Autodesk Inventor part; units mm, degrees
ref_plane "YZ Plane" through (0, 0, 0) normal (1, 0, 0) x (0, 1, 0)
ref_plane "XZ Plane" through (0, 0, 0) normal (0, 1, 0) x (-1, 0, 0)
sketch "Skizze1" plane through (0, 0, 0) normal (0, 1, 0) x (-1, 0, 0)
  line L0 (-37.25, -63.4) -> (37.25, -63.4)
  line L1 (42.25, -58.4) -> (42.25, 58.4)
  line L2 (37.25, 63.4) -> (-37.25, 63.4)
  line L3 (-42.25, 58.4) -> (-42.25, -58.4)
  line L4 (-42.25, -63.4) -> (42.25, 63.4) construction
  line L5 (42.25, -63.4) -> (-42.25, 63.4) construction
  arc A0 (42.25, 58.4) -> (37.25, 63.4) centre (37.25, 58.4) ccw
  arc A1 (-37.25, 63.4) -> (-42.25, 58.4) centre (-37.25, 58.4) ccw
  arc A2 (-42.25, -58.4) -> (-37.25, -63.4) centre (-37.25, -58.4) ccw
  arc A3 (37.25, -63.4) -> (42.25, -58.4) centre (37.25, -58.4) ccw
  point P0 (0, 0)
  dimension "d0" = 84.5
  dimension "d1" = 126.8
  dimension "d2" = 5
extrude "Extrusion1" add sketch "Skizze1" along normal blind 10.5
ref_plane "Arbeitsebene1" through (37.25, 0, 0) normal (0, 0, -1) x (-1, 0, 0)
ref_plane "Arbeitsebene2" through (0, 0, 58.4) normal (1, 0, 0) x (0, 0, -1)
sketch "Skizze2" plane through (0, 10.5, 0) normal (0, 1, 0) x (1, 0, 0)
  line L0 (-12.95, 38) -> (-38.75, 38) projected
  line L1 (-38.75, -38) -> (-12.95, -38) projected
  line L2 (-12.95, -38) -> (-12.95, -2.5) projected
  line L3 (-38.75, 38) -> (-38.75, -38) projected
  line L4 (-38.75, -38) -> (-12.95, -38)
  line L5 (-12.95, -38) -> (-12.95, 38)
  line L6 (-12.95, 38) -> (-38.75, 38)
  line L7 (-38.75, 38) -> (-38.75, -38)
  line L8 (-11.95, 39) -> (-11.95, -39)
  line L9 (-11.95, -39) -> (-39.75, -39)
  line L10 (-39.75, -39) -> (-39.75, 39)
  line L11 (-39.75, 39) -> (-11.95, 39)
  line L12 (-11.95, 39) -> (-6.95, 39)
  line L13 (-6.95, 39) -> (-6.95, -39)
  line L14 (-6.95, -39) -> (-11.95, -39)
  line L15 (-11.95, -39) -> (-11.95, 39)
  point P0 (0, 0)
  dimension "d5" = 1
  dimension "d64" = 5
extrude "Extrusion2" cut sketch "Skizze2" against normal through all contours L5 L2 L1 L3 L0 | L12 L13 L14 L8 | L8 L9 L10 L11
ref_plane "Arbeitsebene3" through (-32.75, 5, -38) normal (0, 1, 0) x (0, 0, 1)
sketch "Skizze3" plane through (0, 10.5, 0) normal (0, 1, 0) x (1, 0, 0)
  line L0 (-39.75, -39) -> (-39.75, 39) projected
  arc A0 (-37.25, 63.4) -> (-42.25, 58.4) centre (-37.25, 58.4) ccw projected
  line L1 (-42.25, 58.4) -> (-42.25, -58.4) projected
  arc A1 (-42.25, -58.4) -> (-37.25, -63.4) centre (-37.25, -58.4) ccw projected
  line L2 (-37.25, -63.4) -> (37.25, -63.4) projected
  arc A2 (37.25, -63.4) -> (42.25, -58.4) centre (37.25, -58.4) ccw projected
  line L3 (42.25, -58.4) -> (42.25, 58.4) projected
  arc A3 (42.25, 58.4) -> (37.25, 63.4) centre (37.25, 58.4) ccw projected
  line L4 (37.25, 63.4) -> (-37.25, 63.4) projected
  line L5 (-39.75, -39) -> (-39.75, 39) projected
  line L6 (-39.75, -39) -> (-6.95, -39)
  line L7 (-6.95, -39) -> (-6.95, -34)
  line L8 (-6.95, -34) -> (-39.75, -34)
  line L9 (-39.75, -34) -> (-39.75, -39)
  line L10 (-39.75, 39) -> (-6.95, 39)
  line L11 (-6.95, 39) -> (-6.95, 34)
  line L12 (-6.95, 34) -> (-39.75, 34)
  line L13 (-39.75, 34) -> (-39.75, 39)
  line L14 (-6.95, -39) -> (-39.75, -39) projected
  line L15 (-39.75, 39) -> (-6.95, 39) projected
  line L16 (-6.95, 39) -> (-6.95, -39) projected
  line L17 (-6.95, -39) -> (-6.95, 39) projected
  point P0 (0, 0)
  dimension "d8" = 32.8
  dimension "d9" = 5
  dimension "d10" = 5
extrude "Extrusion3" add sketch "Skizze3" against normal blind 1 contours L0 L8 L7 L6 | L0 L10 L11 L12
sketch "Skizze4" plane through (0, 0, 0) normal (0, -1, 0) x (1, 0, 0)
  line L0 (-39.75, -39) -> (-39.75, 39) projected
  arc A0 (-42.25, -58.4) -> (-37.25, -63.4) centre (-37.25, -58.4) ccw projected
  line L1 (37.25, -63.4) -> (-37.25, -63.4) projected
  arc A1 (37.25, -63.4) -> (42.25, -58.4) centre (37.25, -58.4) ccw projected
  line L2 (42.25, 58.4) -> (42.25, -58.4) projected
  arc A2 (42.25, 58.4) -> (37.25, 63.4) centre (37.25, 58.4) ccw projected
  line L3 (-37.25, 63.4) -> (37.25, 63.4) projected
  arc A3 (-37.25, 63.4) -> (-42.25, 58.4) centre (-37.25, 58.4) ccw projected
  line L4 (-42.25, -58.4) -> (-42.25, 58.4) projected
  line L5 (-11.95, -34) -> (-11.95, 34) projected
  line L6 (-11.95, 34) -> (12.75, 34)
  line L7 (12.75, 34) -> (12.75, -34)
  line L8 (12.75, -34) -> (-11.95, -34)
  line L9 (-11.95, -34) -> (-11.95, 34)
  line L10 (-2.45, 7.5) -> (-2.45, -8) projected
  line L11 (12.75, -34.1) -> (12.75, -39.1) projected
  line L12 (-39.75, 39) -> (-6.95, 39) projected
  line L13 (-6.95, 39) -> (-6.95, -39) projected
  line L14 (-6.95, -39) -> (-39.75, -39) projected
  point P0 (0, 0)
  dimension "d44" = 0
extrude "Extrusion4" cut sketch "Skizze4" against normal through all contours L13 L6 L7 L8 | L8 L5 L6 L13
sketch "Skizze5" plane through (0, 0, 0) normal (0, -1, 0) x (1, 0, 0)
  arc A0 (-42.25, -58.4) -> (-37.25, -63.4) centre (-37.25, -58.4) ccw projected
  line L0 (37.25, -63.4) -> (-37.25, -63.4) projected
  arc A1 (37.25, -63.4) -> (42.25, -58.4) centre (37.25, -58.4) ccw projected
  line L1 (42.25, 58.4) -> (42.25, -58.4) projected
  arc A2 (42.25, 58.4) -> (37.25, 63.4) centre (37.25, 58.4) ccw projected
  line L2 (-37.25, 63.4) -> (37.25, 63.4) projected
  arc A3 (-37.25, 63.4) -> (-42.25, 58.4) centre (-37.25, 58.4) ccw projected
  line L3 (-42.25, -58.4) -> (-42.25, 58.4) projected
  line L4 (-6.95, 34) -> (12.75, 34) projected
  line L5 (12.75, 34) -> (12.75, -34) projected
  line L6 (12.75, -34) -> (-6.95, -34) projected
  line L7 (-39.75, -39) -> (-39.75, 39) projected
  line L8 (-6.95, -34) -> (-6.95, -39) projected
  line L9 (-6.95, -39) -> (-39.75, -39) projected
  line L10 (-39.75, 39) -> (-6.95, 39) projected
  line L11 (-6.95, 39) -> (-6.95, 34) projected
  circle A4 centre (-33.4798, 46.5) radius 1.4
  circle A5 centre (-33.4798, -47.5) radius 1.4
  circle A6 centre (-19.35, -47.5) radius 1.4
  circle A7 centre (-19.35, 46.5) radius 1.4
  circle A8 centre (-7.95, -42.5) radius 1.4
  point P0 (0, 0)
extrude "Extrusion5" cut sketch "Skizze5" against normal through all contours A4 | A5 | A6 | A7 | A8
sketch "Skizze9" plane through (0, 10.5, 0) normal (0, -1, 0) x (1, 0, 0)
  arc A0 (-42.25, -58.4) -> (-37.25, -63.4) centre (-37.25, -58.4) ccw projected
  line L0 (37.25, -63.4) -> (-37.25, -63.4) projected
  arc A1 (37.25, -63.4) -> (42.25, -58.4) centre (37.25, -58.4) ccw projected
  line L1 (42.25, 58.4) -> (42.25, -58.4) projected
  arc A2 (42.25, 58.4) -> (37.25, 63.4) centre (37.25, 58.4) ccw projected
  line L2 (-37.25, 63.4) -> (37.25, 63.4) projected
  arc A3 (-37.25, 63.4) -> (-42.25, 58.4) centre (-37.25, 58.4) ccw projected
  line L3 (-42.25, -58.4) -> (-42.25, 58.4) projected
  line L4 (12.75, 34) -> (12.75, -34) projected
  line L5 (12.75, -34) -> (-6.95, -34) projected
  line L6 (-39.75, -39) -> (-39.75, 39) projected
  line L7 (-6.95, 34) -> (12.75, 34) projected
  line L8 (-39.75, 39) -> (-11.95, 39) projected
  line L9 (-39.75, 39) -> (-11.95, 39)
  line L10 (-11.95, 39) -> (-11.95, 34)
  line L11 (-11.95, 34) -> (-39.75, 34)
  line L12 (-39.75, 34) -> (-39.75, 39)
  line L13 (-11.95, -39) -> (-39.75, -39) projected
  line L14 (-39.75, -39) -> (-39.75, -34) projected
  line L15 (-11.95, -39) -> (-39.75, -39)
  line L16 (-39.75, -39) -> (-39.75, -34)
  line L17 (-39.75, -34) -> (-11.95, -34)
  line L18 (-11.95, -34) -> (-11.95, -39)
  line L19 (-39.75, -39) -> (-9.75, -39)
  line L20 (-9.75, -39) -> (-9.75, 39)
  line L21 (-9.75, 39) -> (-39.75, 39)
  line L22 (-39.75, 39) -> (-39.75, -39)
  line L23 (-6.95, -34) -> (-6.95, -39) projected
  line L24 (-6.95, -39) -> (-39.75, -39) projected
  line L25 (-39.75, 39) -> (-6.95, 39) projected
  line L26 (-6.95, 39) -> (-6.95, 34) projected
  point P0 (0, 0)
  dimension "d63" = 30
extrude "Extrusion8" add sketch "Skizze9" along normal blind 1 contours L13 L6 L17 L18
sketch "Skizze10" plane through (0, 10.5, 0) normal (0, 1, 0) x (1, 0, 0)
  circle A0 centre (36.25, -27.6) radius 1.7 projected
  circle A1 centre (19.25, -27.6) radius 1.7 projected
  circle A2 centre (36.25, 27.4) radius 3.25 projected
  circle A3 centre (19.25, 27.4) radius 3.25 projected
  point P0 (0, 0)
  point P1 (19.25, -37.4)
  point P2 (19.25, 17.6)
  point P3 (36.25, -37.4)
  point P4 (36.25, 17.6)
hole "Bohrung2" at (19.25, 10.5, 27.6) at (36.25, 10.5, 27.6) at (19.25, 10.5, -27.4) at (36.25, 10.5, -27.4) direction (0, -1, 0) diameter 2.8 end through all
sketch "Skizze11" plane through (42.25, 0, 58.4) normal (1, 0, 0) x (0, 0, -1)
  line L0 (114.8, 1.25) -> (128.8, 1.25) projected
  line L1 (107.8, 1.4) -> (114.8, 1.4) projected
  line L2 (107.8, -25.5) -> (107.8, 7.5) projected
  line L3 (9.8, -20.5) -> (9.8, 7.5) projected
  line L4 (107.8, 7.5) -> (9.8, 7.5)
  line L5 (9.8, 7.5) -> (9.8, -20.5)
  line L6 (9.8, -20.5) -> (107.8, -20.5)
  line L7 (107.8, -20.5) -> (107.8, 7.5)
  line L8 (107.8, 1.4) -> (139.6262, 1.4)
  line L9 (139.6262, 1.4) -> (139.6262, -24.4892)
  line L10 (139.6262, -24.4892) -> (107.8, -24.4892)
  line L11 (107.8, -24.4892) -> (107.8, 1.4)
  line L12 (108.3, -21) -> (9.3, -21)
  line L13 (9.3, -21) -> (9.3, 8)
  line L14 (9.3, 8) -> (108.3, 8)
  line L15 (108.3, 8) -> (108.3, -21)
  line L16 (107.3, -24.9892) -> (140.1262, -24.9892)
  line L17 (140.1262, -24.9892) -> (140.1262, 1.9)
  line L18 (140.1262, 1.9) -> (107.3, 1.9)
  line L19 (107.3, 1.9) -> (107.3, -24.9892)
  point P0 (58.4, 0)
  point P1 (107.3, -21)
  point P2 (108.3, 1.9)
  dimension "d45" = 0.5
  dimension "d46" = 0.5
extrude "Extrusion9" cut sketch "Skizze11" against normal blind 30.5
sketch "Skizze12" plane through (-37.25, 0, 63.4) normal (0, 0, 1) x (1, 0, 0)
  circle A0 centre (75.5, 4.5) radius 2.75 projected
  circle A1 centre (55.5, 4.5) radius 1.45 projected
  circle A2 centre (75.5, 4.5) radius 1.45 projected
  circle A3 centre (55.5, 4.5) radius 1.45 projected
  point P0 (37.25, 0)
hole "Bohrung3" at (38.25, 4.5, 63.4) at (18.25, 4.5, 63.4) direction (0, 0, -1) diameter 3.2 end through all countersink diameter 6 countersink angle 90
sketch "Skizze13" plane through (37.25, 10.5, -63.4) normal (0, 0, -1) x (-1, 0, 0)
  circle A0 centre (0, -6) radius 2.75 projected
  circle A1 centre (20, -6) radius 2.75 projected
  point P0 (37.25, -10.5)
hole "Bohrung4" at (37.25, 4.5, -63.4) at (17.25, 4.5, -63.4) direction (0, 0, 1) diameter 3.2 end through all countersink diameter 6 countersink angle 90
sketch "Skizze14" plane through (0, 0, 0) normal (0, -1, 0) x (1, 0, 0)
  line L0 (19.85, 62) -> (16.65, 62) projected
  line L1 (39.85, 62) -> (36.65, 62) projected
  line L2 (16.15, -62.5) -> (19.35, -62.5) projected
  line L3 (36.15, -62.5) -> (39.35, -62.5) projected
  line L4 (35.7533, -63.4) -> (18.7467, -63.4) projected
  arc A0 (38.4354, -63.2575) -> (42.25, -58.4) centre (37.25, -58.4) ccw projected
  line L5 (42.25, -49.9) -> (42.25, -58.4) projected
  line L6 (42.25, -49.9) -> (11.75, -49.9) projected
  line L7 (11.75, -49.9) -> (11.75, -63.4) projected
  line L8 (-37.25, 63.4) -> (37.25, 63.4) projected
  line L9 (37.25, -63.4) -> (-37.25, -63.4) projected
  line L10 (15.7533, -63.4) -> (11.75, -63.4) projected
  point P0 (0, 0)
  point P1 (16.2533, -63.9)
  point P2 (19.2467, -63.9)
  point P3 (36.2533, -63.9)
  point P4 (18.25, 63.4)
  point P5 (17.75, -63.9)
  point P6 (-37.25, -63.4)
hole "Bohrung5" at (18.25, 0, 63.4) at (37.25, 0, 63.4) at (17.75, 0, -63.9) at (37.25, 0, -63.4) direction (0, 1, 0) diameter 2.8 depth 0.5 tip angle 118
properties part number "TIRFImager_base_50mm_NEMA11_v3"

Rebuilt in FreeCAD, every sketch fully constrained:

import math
import FreeCAD as App
import Part
import Sketcher

V = App.Vector

doc = App.newDocument("Part")
params = doc.addObject("Spreadsheet::Sheet", "Params")
for row, (alias, value) in enumerate([
    ("sketch1_radius", "5 mm"),
    ("sketch1_height", "116.8 mm"),
    ("pad1_length", "10.5 mm"),
    ("sketch2_height", "78 mm"),
    ("sketch2_width", "32.8 mm"),
    ("sketch3_height", "5 mm"),
    ("sketch3_width", "32.8 mm"),
    ("pad2_length", "1 mm"),
    ("sketch4_height", "68 mm"),
    ("sketch4_width", "24.7 mm"),
    ("sketch5_diameter", "2.8 mm"),
    ("sketch6_height", "5 mm"),
    ("sketch6_width", "27.8 mm"),
    ("pad3_length", "1 mm"),
    ("sketch7_diameter", "2.8 mm"),
    ("hole_diameter", "2.8 mm"),
    ("sketch8_width", "29 mm"),
    ("sketch8_height", "98 mm"),
    ("sketch8_height2", "99 mm"),
    ("sketch8_width2", "6.1 mm"),
    ("pocket4_length", "30.5 mm"),
    ("sketch9_diameter", "3.2 mm"),
    ("hole2_diameter", "3.2 mm"),
    ("hole2_csink_diameter", "6 mm"),
    ("sketch10_diameter", "3.2 mm"),
    ("hole3_diameter", "3.2 mm"),
    ("hole3_csink_diameter", "6 mm"),
    ("sketch11_diameter", "2.8 mm"),
    ("hole4_diameter", "2.8 mm"),
    ("hole4_depth", "0.5 mm"),
], start=1):
    params.set(f"A{row}", alias)
    params.set(f"B{row}", "=" + value)
    params.setAlias(f"B{row}", alias)

body = doc.addObject("PartDesign::Body", "Body")

# Sketch on XZ plane
sketch1 = body.newObject("Sketcher::SketchObject", "Sketch")
sketch1.AttachmentSupport = (doc.getObject("XZ_Plane"), [""])
sketch1.MapMode = "FlatFace"
sketch1.addGeometry(Part.ArcOfCircle(Part.Circle(V(37.25, -58.4, 0), V(0, 0, 1), 5), math.radians(-90), math.radians(0)), False)
sketch1.addGeometry(Part.LineSegment(V(37.25, -63.4, 0), V(-37.25, -63.4, 0)), False)
sketch1.addGeometry(Part.ArcOfCircle(Part.Circle(V(-37.25, -58.4, 0), V(0, 0, 1), 5), math.radians(180), math.radians(270)), False)
sketch1.addGeometry(Part.LineSegment(V(-42.25, -58.4, 0), V(-42.25, 58.4, 0)), False)
sketch1.addGeometry(Part.ArcOfCircle(Part.Circle(V(-37.25, 58.4, 0), V(0, 0, 1), 5), math.radians(90), math.radians(180)), False)
sketch1.addGeometry(Part.LineSegment(V(-37.25, 63.4, 0), V(37.25, 63.4, 0)), False)
sketch1.addGeometry(Part.ArcOfCircle(Part.Circle(V(37.25, 58.4, 0), V(0, 0, 1), 5), math.radians(0), math.radians(90)), False)
sketch1.addGeometry(Part.LineSegment(V(42.25, 58.4, 0), V(42.25, -58.4, 0)), False)
sketch1.addConstraint(Sketcher.Constraint("Tangent", 0, 1, 1, 1))
sketch1.addConstraint(Sketcher.Constraint("Tangent", 1, 2, 2, 2))
sketch1.addConstraint(Sketcher.Constraint("Tangent", 2, 1, 3, 1))
sketch1.addConstraint(Sketcher.Constraint("Tangent", 3, 2, 4, 2))
sketch1.addConstraint(Sketcher.Constraint("Tangent", 4, 1, 5, 1))
sketch1.addConstraint(Sketcher.Constraint("Tangent", 5, 2, 6, 2))
sketch1.addConstraint(Sketcher.Constraint("Tangent", 6, 1, 7, 1))
sketch1.addConstraint(Sketcher.Constraint("Tangent", 7, 2, 0, 2))
sketch1.addConstraint(Sketcher.Constraint("Horizontal", 1))
sketch1.addConstraint(Sketcher.Constraint("Vertical", 3))
sketch1.addConstraint(Sketcher.Constraint("Horizontal", 5))
sketch1.addConstraint(Sketcher.Constraint("Vertical", 7))
sketch1.addConstraint(Sketcher.Constraint("Equal", 0, 2))
sketch1.addConstraint(Sketcher.Constraint("Equal", 2, 4))
sketch1.addConstraint(Sketcher.Constraint("Equal", 4, 6))
sketch1.addConstraint(Sketcher.Constraint("Symmetric", 0, 3, 4, 3, -1, 1))
sketch1.addConstraint(Sketcher.Constraint("Radius", 0, 5.0))
sketch1.addConstraint(Sketcher.Constraint("DistanceX", 3, 2, 6, 1, 84.5))
sketch1.addConstraint(Sketcher.Constraint("DistanceY", 3, 1, 3, 2, 116.8))
sketch1.setExpression("Constraints[16]", "Params.sketch1_radius")
sketch1.setExpression("Constraints[18]", "Params.sketch1_height")
pad1 = body.newObject("PartDesign::Pad", "Pad")
pad1.Profile = sketch1
pad1.setExpression("Length", "Params.pad1_length")
pad1.Reversed = True

# Sketch on XZ plane
sketch2 = body.newObject("Sketcher::SketchObject", "Sketch001")
sketch2.AttachmentSupport = (doc.getObject("XZ_Plane"), [""])
sketch2.MapMode = "FlatFace"
sketch2.AttachmentOffset = App.Placement(V(0, 0, -10.5), App.Rotation())
sketch2.addGeometry(Part.LineSegment(V(-39.75, 39, 0), V(-6.95, 39, 0)), False)
sketch2.addGeometry(Part.LineSegment(V(-6.95, 39, 0), V(-6.95, -39, 0)), False)
sketch2.addGeometry(Part.LineSegment(V(-6.95, -39, 0), V(-39.75, -39, 0)), False)
sketch2.addGeometry(Part.LineSegment(V(-39.75, -39, 0), V(-39.75, 39, 0)), False)
sketch2.addConstraint(Sketcher.Constraint("Coincident", 0, 2, 1, 1))
sketch2.addConstraint(Sketcher.Constraint("Coincident", 1, 2, 2, 1))
sketch2.addConstraint(Sketcher.Constraint("Coincident", 2, 2, 3, 1))
sketch2.addConstraint(Sketcher.Constraint("Coincident", 3, 2, 0, 1))
sketch2.addConstraint(Sketcher.Constraint("Horizontal", 0))
sketch2.addConstraint(Sketcher.Constraint("Vertical", 1))
sketch2.addConstraint(Sketcher.Constraint("Horizontal", 2))
sketch2.addConstraint(Sketcher.Constraint("Vertical", 3))
sketch2.addConstraint(Sketcher.Constraint("DistanceY", 1, 2, 1, 1, 78.0))
sketch2.addConstraint(Sketcher.Constraint("DistanceX", 0, 1, 0, 2, 32.8))
sketch2.addConstraint(Sketcher.Constraint("DistanceY", -1, 1, 0, 2, 39.0))
sketch2.addConstraint(Sketcher.Constraint("DistanceX", 0, 2, -1, 1, 6.95))
sketch2.setExpression("Constraints[8]", "Params.sketch2_height")
sketch2.setExpression("Constraints[9]", "Params.sketch2_width")
pocket1 = body.newObject("PartDesign::Pocket", "Pocket")
pocket1.Profile = sketch2
pocket1.Type = "ThroughAll"
pocket1.Reversed = True

# Sketch on XZ plane
sketch3 = body.newObject("Sketcher::SketchObject", "Sketch002")
sketch3.AttachmentSupport = (doc.getObject("XZ_Plane"), [""])
sketch3.MapMode = "FlatFace"
sketch3.AttachmentOffset = App.Placement(V(0, 0, -10.5), App.Rotation())
sketch3.addGeometry(Part.LineSegment(V(-39.75, 34, 0), V(-39.75, 39, 0)), False)
sketch3.addGeometry(Part.LineSegment(V(-39.75, 39, 0), V(-6.95, 39, 0)), False)
sketch3.addGeometry(Part.LineSegment(V(-6.95, 39, 0), V(-6.95, 34, 0)), False)
sketch3.addGeometry(Part.LineSegment(V(-6.95, 34, 0), V(-39.75, 34, 0)), False)
sketch3.addGeometry(Part.LineSegment(V(-39.75, -39, 0), V(-39.75, -34, 0)), False)
sketch3.addGeometry(Part.LineSegment(V(-39.75, -34, 0), V(-6.95, -34, 0)), False)
sketch3.addGeometry(Part.LineSegment(V(-6.95, -34, 0), V(-6.95, -39, 0)), False)
sketch3.addGeometry(Part.LineSegment(V(-6.95, -39, 0), V(-39.75, -39, 0)), False)
sketch3.addConstraint(Sketcher.Constraint("Coincident", 0, 2, 1, 1))
sketch3.addConstraint(Sketcher.Constraint("Coincident", 1, 2, 2, 1))
sketch3.addConstraint(Sketcher.Constraint("Coincident", 2, 2, 3, 1))
sketch3.addConstraint(Sketcher.Constraint("Coincident", 3, 2, 0, 1))
sketch3.addConstraint(Sketcher.Constraint("Coincident", 4, 2, 5, 1))
sketch3.addConstraint(Sketcher.Constraint("Coincident", 5, 2, 6, 1))
sketch3.addConstraint(Sketcher.Constraint("Coincident", 6, 2, 7, 1))
sketch3.addConstraint(Sketcher.Constraint("Coincident", 7, 2, 4, 1))
sketch3.addConstraint(Sketcher.Constraint("Vertical", 0))
sketch3.addConstraint(Sketcher.Constraint("Horizontal", 1))
sketch3.addConstraint(Sketcher.Constraint("Vertical", 2))
sketch3.addConstraint(Sketcher.Constraint("Horizontal", 3))
sketch3.addConstraint(Sketcher.Constraint("Vertical", 4))
sketch3.addConstraint(Sketcher.Constraint("Horizontal", 5))
sketch3.addConstraint(Sketcher.Constraint("Vertical", 6))
sketch3.addConstraint(Sketcher.Constraint("Horizontal", 7))
sketch3.addConstraint(Sketcher.Constraint("Symmetric", 3, 2, 4, 2, -1))
sketch3.addConstraint(Sketcher.Constraint("Symmetric", 1, 2, 6, 2, -1))
sketch3.addConstraint(Sketcher.Constraint("DistanceY", 0, 1, 0, 2, 5.0))
sketch3.addConstraint(Sketcher.Constraint("DistanceX", 1, 1, 1, 2, 32.8))
sketch3.addConstraint(Sketcher.Constraint("DistanceY", -1, 1, 0, 2, 39.0))
sketch3.addConstraint(Sketcher.Constraint("DistanceX", 0, 2, -1, 1, 39.75))
sketch3.setExpression("Constraints[18]", "Params.sketch3_height")
sketch3.setExpression("Constraints[19]", "Params.sketch3_width")
pad2 = body.newObject("PartDesign::Pad", "Pad001")
pad2.Profile = sketch3
pad2.setExpression("Length", "Params.pad2_length")

# Sketch on XZ plane
sketch4 = body.newObject("Sketcher::SketchObject", "Sketch003")
sketch4.AttachmentSupport = (doc.getObject("XZ_Plane"), [""])
sketch4.MapMode = "FlatFace"
sketch4.addGeometry(Part.LineSegment(V(12.75, 34, 0), V(-11.95, 34, 0)), False)
sketch4.addGeometry(Part.LineSegment(V(-11.95, 34, 0), V(-11.95, -34, 0)), False)
sketch4.addGeometry(Part.LineSegment(V(-11.95, -34, 0), V(12.75, -34, 0)), False)
sketch4.addGeometry(Part.LineSegment(V(12.75, -34, 0), V(12.75, 34, 0)), False)
sketch4.addConstraint(Sketcher.Constraint("Coincident", 0, 2, 1, 1))
sketch4.addConstraint(Sketcher.Constraint("Coincident", 1, 2, 2, 1))
sketch4.addConstraint(Sketcher.Constraint("Coincident", 2, 2, 3, 1))
sketch4.addConstraint(Sketcher.Constraint("Coincident", 3, 2, 0, 1))
sketch4.addConstraint(Sketcher.Constraint("Horizontal", 0))
sketch4.addConstraint(Sketcher.Constraint("Vertical", 1))
sketch4.addConstraint(Sketcher.Constraint("Horizontal", 2))
sketch4.addConstraint(Sketcher.Constraint("Vertical", 3))
sketch4.addConstraint(Sketcher.Constraint("DistanceY", 1, 2, 1, 1, 68.0))
sketch4.addConstraint(Sketcher.Constraint("DistanceX", 0, 2, 0, 1, 24.7))
sketch4.addConstraint(Sketcher.Constraint("DistanceY", -1, 1, 0, 2, 34.0))
sketch4.addConstraint(Sketcher.Constraint("DistanceX", 0, 2, -1, 1, 11.95))
sketch4.setExpression("Constraints[8]", "Params.sketch4_height")
sketch4.setExpression("Constraints[9]", "Params.sketch4_width")
pocket2 = body.newObject("PartDesign::Pocket", "Pocket001")
pocket2.Profile = sketch4
pocket2.Type = "ThroughAll"

# Sketch on XZ plane
sketch5 = body.newObject("Sketcher::SketchObject", "Sketch004")
sketch5.AttachmentSupport = (doc.getObject("XZ_Plane"), [""])
sketch5.MapMode = "FlatFace"
sketch5.addGeometry(Part.Circle(V(-33.4798, 46.5, 0), V(0, 0, 1), 1.4), False)
sketch5.addGeometry(Part.Circle(V(-33.4798, -47.5, 0), V(0, 0, 1), 1.4), False)
sketch5.addGeometry(Part.Circle(V(-19.35, -47.5, 0), V(0, 0, 1), 1.4), False)
sketch5.addGeometry(Part.Circle(V(-19.35, 46.5, 0), V(0, 0, 1), 1.4), False)
sketch5.addGeometry(Part.Circle(V(-7.95, -42.5, 0), V(0, 0, 1), 1.4), False)
sketch5.addConstraint(Sketcher.Constraint("Equal", 0, 1))
sketch5.addConstraint(Sketcher.Constraint("Equal", 1, 2))
sketch5.addConstraint(Sketcher.Constraint("Equal", 2, 3))
sketch5.addConstraint(Sketcher.Constraint("Equal", 3, 4))
sketch5.addConstraint(Sketcher.Constraint("Horizontal", 1, 3, 2, 3))
sketch5.addConstraint(Sketcher.Constraint("Horizontal", 0, 3, 3, 3))
sketch5.addConstraint(Sketcher.Constraint("Vertical", 0, 3, 1, 3))
sketch5.addConstraint(Sketcher.Constraint("Vertical", 2, 3, 3, 3))
sketch5.addConstraint(Sketcher.Constraint("Diameter", 0, 2.8))
sketch5.addConstraint(Sketcher.Constraint("DistanceY", 1, 3, 0, 3, 94.0))
sketch5.addConstraint(Sketcher.Constraint("DistanceY", 2, 3, 4, 3, 5.0))
sketch5.addConstraint(Sketcher.Constraint("DistanceY", -1, 1, 0, 3, 46.5))
sketch5.addConstraint(Sketcher.Constraint("DistanceX", 2, 3, 4, 3, 11.4))
sketch5.addConstraint(Sketcher.Constraint("DistanceX", 2, 3, -1, 1, 19.35))
sketch5.addConstraint(Sketcher.Constraint("DistanceX", 0, 3, -1, 1, 33.4798))
sketch5.setExpression("Constraints[8]", "Params.sketch5_diameter")
pocket3 = body.newObject("PartDesign::Pocket", "Pocket002")
pocket3.Profile = sketch5
pocket3.Type = "ThroughAll"

# Sketch on XZ plane
sketch6 = body.newObject("Sketcher::SketchObject", "Sketch005")
sketch6.AttachmentSupport = (doc.getObject("XZ_Plane"), [""])
sketch6.MapMode = "FlatFace"
sketch6.AttachmentOffset = App.Placement(V(0, 0, -10.5), App.Rotation())
sketch6.addGeometry(Part.LineSegment(V(-39.75, -39, 0), V(-11.95, -39, 0)), False)
sketch6.addGeometry(Part.LineSegment(V(-11.95, -39, 0), V(-11.95, -34, 0)), False)
sketch6.addGeometry(Part.LineSegment(V(-11.95, -34, 0), V(-39.75, -34, 0)), False)
sketch6.addGeometry(Part.LineSegment(V(-39.75, -34, 0), V(-39.75, -39, 0)), False)
sketch6.addConstraint(Sketcher.Constraint("Coincident", 0, 2, 1, 1))
sketch6.addConstraint(Sketcher.Constraint("Coincident", 1, 2, 2, 1))
sketch6.addConstraint(Sketcher.Constraint("Coincident", 2, 2, 3, 1))
sketch6.addConstraint(Sketcher.Constraint("Coincident", 3, 2, 0, 1))
sketch6.addConstraint(Sketcher.Constraint("Horizontal", 0))
sketch6.addConstraint(Sketcher.Constraint("Vertical", 1))
sketch6.addConstraint(Sketcher.Constraint("Horizontal", 2))
sketch6.addConstraint(Sketcher.Constraint("Vertical", 3))
sketch6.addConstraint(Sketcher.Constraint("DistanceY", 1, 1, 1, 2, 5.0))
sketch6.addConstraint(Sketcher.Constraint("DistanceX", 0, 1, 0, 2, 27.8))
sketch6.addConstraint(Sketcher.Constraint("DistanceY", 0, 2, -1, 1, 39.0))
sketch6.addConstraint(Sketcher.Constraint("DistanceX", 0, 2, -1, 1, 11.95))
sketch6.setExpression("Constraints[8]", "Params.sketch6_height")
sketch6.setExpression("Constraints[9]", "Params.sketch6_width")
pad3 = body.newObject("PartDesign::Pad", "Pad002")
pad3.Profile = sketch6
pad3.setExpression("Length", "Params.pad3_length")

# Sketch on XZ plane
sketch7 = body.newObject("Sketcher::SketchObject", "Sketch006")
sketch7.AttachmentSupport = (doc.getObject("XZ_Plane"), [""])
sketch7.MapMode = "FlatFace"
sketch7.AttachmentOffset = App.Placement(V(0, 0, -10.5), App.Rotation())
sketch7.addGeometry(Part.Circle(V(19.25, 27.6, 0), V(0, 0, 1), 1.4), False)
sketch7.addGeometry(Part.Circle(V(36.25, 27.6, 0), V(0, 0, 1), 1.4), False)
sketch7.addGeometry(Part.Circle(V(19.25, -27.4, 0), V(0, 0, 1), 1.4), False)
sketch7.addGeometry(Part.Circle(V(36.25, -27.4, 0), V(0, 0, 1), 1.4), False)
sketch7.addConstraint(Sketcher.Constraint("Equal", 0, 1))
sketch7.addConstraint(Sketcher.Constraint("Equal", 1, 2))
sketch7.addConstraint(Sketcher.Constraint("Equal", 2, 3))
sketch7.addConstraint(Sketcher.Constraint("Horizontal", 0, 3, 1, 3))
sketch7.addConstraint(Sketcher.Constraint("Horizontal", 2, 3, 3, 3))
sketch7.addConstraint(Sketcher.Constraint("Vertical", 0, 3, 2, 3))
sketch7.addConstraint(Sketcher.Constraint("Vertical", 1, 3, 3, 3))
sketch7.addConstraint(Sketcher.Constraint("Diameter", 0, 2.8))
sketch7.addConstraint(Sketcher.Constraint("DistanceX", 0, 3, 1, 3, 17.0))
sketch7.addConstraint(Sketcher.Constraint("DistanceY", 2, 3, 0, 3, 55.0))
sketch7.addConstraint(Sketcher.Constraint("DistanceY", -1, 1, 0, 3, 27.6))
sketch7.addConstraint(Sketcher.Constraint("DistanceX", -1, 1, 0, 3, 19.25))
sketch7.setExpression("Constraints[7]", "Params.sketch7_diameter")
doc.recompute()
hole = body.newObject("PartDesign::Hole", "Hole")
hole.Profile = sketch7
hole.ThreadType = "None"
hole.setExpression("Diameter", "Params.hole_diameter")
hole.DepthType = "ThroughAll"
hole.Reversed = True

# Sketch on YZ plane
sketch8 = body.newObject("Sketcher::SketchObject", "Sketch007")
sketch8.AttachmentSupport = (doc.getObject("YZ_Plane"), [""])
sketch8.MapMode = "FlatFace"
sketch8.AttachmentOffset = App.Placement(V(0, 0, 42.25), App.Rotation())
sketch8.addGeometry(Part.LineSegment(V(-21, 49.1, 0), V(-21, -48.9, 0)), False)
sketch8.addGeometry(Part.LineSegment(V(-21, -48.9, 0), V(-24.9892, -48.9, 0)), False)
sketch8.addGeometry(Part.LineSegment(V(-24.9892, -48.9, 0), V(-24.9892, -81.7262, 0)), False)
sketch8.addGeometry(Part.LineSegment(V(-24.9892, -81.7262, 0), V(1.9, -81.7262, 0)), False)
sketch8.addGeometry(Part.LineSegment(V(1.9, -81.7262, 0), V(1.9, -49.9, 0)), False)
sketch8.addGeometry(Part.LineSegment(V(1.9, -49.9, 0), V(8, -49.9, 0)), False)
sketch8.addGeometry(Part.LineSegment(V(8, -49.9, 0), V(8, 49.1, 0)), False)
sketch8.addGeometry(Part.LineSegment(V(8, 49.1, 0), V(-21, 49.1, 0)), False)
sketch8.addConstraint(Sketcher.Constraint("Coincident", 0, 2, 1, 1))
sketch8.addConstraint(Sketcher.Constraint("Coincident", 1, 2, 2, 1))
sketch8.addConstraint(Sketcher.Constraint("Coincident", 2, 2, 3, 1))
sketch8.addConstraint(Sketcher.Constraint("Coincident", 3, 2, 4, 1))
sketch8.addConstraint(Sketcher.Constraint("Coincident", 4, 2, 5, 1))
sketch8.addConstraint(Sketcher.Constraint("Coincident", 5, 2, 6, 1))
sketch8.addConstraint(Sketcher.Constraint("Coincident", 6, 2, 7, 1))
sketch8.addConstraint(Sketcher.Constraint("Coincident", 7, 2, 0, 1))
sketch8.addConstraint(Sketcher.Constraint("Vertical", 0))
sketch8.addConstraint(Sketcher.Constraint("Horizontal", 1))
sketch8.addConstraint(Sketcher.Constraint("Vertical", 2))
sketch8.addConstraint(Sketcher.Constraint("Horizontal", 3))
sketch8.addConstraint(Sketcher.Constraint("Vertical", 4))
sketch8.addConstraint(Sketcher.Constraint("Horizontal", 5))
sketch8.addConstraint(Sketcher.Constraint("Vertical", 6))
sketch8.addConstraint(Sketcher.Constraint("Horizontal", 7))
sketch8.addConstraint(Sketcher.Constraint("DistanceX", 7, 2, 7, 1, 29.0))
sketch8.addConstraint(Sketcher.Constraint("DistanceY", 0, 2, 0, 1, 98.0))
sketch8.addConstraint(Sketcher.Constraint("DistanceY", 6, 1, 6, 2, 99.0))
sketch8.addConstraint(Sketcher.Constraint("DistanceX", 5, 1, 5, 2, 6.1))
sketch8.addConstraint(Sketcher.Constraint("DistanceX", 0, 2, -1, 1, 21.0))
sketch8.addConstraint(Sketcher.Constraint("DistanceY", 0, 2, -1, 1, 48.9))
sketch8.addConstraint(Sketcher.Constraint("DistanceX", 1, 2, 1, 1, 3.9892))
sketch8.addConstraint(Sketcher.Constraint("DistanceY", 2, 2, 2, 1, 32.8262))
sketch8.setExpression("Constraints[16]", "Params.sketch8_width")
sketch8.setExpression("Constraints[17]", "Params.sketch8_height")
sketch8.setExpression("Constraints[18]", "Params.sketch8_height2")
sketch8.setExpression("Constraints[19]", "Params.sketch8_width2")
pocket4 = body.newObject("PartDesign::Pocket", "Pocket003")
pocket4.Profile = sketch8
pocket4.setExpression("Length", "Params.pocket4_length")

# Sketch on XY plane
sketch9 = body.newObject("Sketcher::SketchObject", "Sketch008")
sketch9.AttachmentSupport = (doc.getObject("XY_Plane"), [""])
sketch9.MapMode = "FlatFace"
sketch9.AttachmentOffset = App.Placement(V(0, 0, 63.4), App.Rotation())
sketch9.addGeometry(Part.Circle(V(38.25, 4.5, 0), V(0, 0, 1), 1.6), False)
sketch9.addGeometry(Part.Circle(V(18.25, 4.5, 0), V(0, 0, 1), 1.6), False)
sketch9.addConstraint(Sketcher.Constraint("Equal", 0, 1))
sketch9.addConstraint(Sketcher.Constraint("Horizontal", 0, 3, 1, 3))
sketch9.addConstraint(Sketcher.Constraint("Diameter", 0, 3.2))
sketch9.addConstraint(Sketcher.Constraint("DistanceX", 1, 3, 0, 3, 20.0))
sketch9.addConstraint(Sketcher.Constraint("DistanceY", -1, 1, 0, 3, 4.5))
sketch9.addConstraint(Sketcher.Constraint("DistanceX", -1, 1, 0, 3, 38.25))
sketch9.setExpression("Constraints[2]", "Params.sketch9_diameter")
doc.recompute()
hole2 = body.newObject("PartDesign::Hole", "Hole001")
hole2.Profile = sketch9
hole2.ThreadType = "None"
hole2.setExpression("Diameter", "Params.hole2_diameter")
hole2.DepthType = "ThroughAll"
hole2.HoleCutType = "Countersink"
hole2.setExpression("HoleCutDiameter", "Params.hole2_csink_diameter")
hole2.HoleCutCountersinkAngle = 90

# Sketch on XY plane
sketch10 = body.newObject("Sketcher::SketchObject", "Sketch009")
sketch10.AttachmentSupport = (doc.getObject("XY_Plane"), [""])
sketch10.MapMode = "FlatFace"
sketch10.AttachmentOffset = App.Placement(V(0, 0, -63.4), App.Rotation())
sketch10.addGeometry(Part.Circle(V(37.25, 4.5, 0), V(0, 0, 1), 1.6), False)
sketch10.addGeometry(Part.Circle(V(17.25, 4.5, 0), V(0, 0, 1), 1.6), False)
sketch10.addConstraint(Sketcher.Constraint("Equal", 0, 1))
sketch10.addConstraint(Sketcher.Constraint("Horizontal", 0, 3, 1, 3))
sketch10.addConstraint(Sketcher.Constraint("Diameter", 0, 3.2))
sketch10.addConstraint(Sketcher.Constraint("DistanceX", 1, 3, 0, 3, 20.0))
sketch10.addConstraint(Sketcher.Constraint("DistanceY", -1, 1, 0, 3, 4.5))
sketch10.addConstraint(Sketcher.Constraint("DistanceX", -1, 1, 0, 3, 37.25))
sketch10.setExpression("Constraints[2]", "Params.sketch10_diameter")
doc.recompute()
hole3 = body.newObject("PartDesign::Hole", "Hole002")
hole3.Profile = sketch10
hole3.ThreadType = "None"
hole3.setExpression("Diameter", "Params.hole3_diameter")
hole3.DepthType = "ThroughAll"
hole3.HoleCutType = "Countersink"
hole3.setExpression("HoleCutDiameter", "Params.hole3_csink_diameter")
hole3.HoleCutCountersinkAngle = 90
hole3.Reversed = True

# Sketch on XZ plane
sketch11 = body.newObject("Sketcher::SketchObject", "Sketch010")
sketch11.AttachmentSupport = (doc.getObject("XZ_Plane"), [""])
sketch11.MapMode = "FlatFace"
sketch11.addGeometry(Part.Circle(V(18.25, 63.4, 0), V(0, 0, 1), 1.4), False)
sketch11.addGeometry(Part.Circle(V(37.25, 63.4, 0), V(0, 0, 1), 1.4), False)
sketch11.addGeometry(Part.Circle(V(17.75, -63.9, 0), V(0, 0, 1), 1.4), False)
sketch11.addGeometry(Part.Circle(V(37.25, -63.4, 0), V(0, 0, 1), 1.4), False)
sketch11.addConstraint(Sketcher.Constraint("Equal", 0, 1))
sketch11.addConstraint(Sketcher.Constraint("Equal", 1, 2))
sketch11.addConstraint(Sketcher.Constraint("Equal", 2, 3))
sketch11.addConstraint(Sketcher.Constraint("Symmetric", 1, 3, 3, 3, -1))
sketch11.addConstraint(Sketcher.Constraint("Horizontal", 0, 3, 1, 3))
sketch11.addConstraint(Sketcher.Constraint("Diameter", 0, 2.8))
sketch11.addConstraint(Sketcher.Constraint("DistanceX", 0, 3, 1, 3, 19.0))
sketch11.addConstraint(Sketcher.Constraint("DistanceY", -1, 1, 0, 3, 63.4))
sketch11.addConstraint(Sketcher.Constraint("DistanceY", 2, 3, -1, 1, 63.9))
sketch11.addConstraint(Sketcher.Constraint("DistanceX", 2, 3, 0, 3, 0.5))
sketch11.addConstraint(Sketcher.Constraint("DistanceX", -1, 1, 0, 3, 18.25))
sketch11.setExpression("Constraints[5]", "Params.sketch11_diameter")
doc.recompute()
hole4 = body.newObject("PartDesign::Hole", "Hole003")
hole4.Profile = sketch11
hole4.ThreadType = "None"
hole4.setExpression("Diameter", "Params.hole4_diameter")
hole4.DepthType = "Dimension"
hole4.setExpression("Depth", "Params.hole4_depth")
hole4.DrillPoint = "Angled"
hole4.DrillPointAngle = 118

doc.recompute()
